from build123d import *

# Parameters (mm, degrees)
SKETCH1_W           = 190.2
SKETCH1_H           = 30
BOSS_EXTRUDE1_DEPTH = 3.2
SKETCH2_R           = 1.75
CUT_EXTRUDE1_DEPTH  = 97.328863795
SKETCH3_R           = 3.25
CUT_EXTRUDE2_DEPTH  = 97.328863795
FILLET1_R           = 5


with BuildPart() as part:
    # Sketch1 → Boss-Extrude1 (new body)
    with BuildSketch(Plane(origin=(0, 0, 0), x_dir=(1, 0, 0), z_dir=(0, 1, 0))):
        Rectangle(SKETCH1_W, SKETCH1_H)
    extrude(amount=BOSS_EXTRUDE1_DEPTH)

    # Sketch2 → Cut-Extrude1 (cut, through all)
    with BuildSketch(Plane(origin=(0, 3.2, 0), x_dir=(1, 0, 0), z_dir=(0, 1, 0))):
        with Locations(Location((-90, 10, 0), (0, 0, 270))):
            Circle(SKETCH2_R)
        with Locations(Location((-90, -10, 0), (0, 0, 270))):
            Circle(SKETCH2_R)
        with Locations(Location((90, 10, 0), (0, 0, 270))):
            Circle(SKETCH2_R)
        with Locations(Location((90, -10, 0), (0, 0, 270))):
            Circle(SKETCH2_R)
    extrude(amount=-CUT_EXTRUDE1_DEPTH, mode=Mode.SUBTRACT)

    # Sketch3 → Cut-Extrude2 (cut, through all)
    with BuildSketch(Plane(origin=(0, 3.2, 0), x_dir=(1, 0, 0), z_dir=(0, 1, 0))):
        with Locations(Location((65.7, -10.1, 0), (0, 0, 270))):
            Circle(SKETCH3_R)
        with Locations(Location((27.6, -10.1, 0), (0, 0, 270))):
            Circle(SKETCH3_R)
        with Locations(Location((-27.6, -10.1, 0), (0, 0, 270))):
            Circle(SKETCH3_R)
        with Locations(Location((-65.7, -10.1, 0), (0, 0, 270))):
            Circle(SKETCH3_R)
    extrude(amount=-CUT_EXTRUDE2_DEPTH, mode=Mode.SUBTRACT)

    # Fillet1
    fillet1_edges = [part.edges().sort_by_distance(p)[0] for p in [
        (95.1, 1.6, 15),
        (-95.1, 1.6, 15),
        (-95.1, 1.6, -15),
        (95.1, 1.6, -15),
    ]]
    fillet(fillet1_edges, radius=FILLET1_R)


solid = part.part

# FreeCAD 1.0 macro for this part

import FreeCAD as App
import Part
import Sketcher

V = App.Vector


def edges_at(feature, points):
    """Names of the edges that pass closest to the given points."""
    edges = feature.Shape.Edges
    near = lambda p: min(range(len(edges)), key=lambda i: edges[i].distToShape(Part.Vertex(*p))[0])
    return sorted({f"Edge{near(p) + 1}" for p in points})


def add_polygon(sketch, points):
    """Adds a closed chain of lines whose ends are joined by coincident constraints."""
    first, n = sketch.GeometryCount, len(points)
    for a, b in zip(points, points[1:] + points[:1]):
        sketch.addGeometry(Part.LineSegment(App.Vector(*a, 0), App.Vector(*b, 0)), False)
    for i in range(n):
        sketch.addConstraint(Sketcher.Constraint("Coincident", first + i, 2, first + (i + 1) % n, 1))

doc = App.newDocument("Part")
body = doc.addObject("PartDesign::Body", "Body")

# Sketch on XZ plane
sketch1 = body.newObject("Sketcher::SketchObject", "Sketch")
sketch1.AttachmentSupport = (doc.getObject("XZ_Plane"), [""])
sketch1.MapMode = "FlatFace"
add_polygon(sketch1, [(-95, -15), (-95, 15), (95, 15), (95, -15)])  # lines 0-3
sketch1.addConstraint(Sketcher.Constraint("Vertical", 0))
sketch1.addConstraint(Sketcher.Constraint("Horizontal", 1))
sketch1.addConstraint(Sketcher.Constraint("Vertical", 2))
sketch1.addConstraint(Sketcher.Constraint("Horizontal", 3))
sketch1.addConstraint(Sketcher.Constraint("Symmetric", 0, 2, 2, 2, -1, 1))
sketch1.addConstraint(Sketcher.Constraint("DistanceY", 0, 1, 0, 2, 30.0))
sketch1.addConstraint(Sketcher.Constraint("DistanceX", 1, 1, 1, 2, 190.2))
pad1 = body.newObject("PartDesign::Pad", "Pad")
pad1.Profile = sketch1
pad1.Length = 3.2
pad1.Reversed = True

# Sketch on XZ plane
sketch2 = body.newObject("Sketcher::SketchObject", "Sketch001")
sketch2.AttachmentSupport = (doc.getObject("XZ_Plane"), [""])
sketch2.MapMode = "FlatFace"
sketch2.AttachmentOffset = App.Placement(V(0, 0, -3.2), App.Rotation())
sketch2.addGeometry(Part.Circle(V(-90, -10, 0), V(0, 0, 1), 1.8), False)
sketch2.addGeometry(Part.Circle(V(-90, 10, 0), V(0, 0, 1), 1.8), False)
sketch2.addGeometry(Part.Circle(V(90, -10, 0), V(0, 0, 1), 1.8), False)
sketch2.addGeometry(Part.Circle(V(90, 10, 0), V(0, 0, 1), 1.8), False)
sketch2.addConstraint(Sketcher.Constraint("Equal", 0, 1))
sketch2.addConstraint(Sketcher.Constraint("Equal", 1, 2))
sketch2.addConstraint(Sketcher.Constraint("Equal", 2, 3))
sketch2.addConstraint(Sketcher.Constraint("Symmetric", 1, 3, 2, 3, -1, 1))
sketch2.addConstraint(Sketcher.Constraint("Symmetric", 0, 3, 3, 3, -1, 1))
sketch2.addConstraint(Sketcher.Constraint("Symmetric", 0, 3, 2, 3, -2))
sketch2.addConstraint(Sketcher.Constraint("Diameter", 0, 3.5))
sketch2.addConstraint(Sketcher.Constraint("DistanceX", 0, 3, -1, 1, 90.0))
sketch2.addConstraint(Sketcher.Constraint("DistanceY", 0, 3, -1, 1, 10.0))
pocket1 = body.newObject("PartDesign::Pocket", "Pocket")
pocket1.Profile = sketch2
pocket1.Type = "ThroughAll"
pocket1.Reversed = True

# Sketch on XZ plane
sketch3 = body.newObject("Sketcher::SketchObject", "Sketch002")
sketch3.AttachmentSupport = (doc.getObject("XZ_Plane"), [""])
sketch3.MapMode = "FlatFace"
sketch3.AttachmentOffset = App.Placement(V(0, 0, -3.2), App.Rotation())
sketch3.addGeometry(Part.Circle(V(65.7, 10.1, 0), V(0, 0, 1), 3.2), False)
sketch3.addGeometry(Part.Circle(V(27.6, 10.1, 0), V(0, 0, 1), 3.2), False)
sketch3.addGeometry(Part.Circle(V(-27.6, 10.1, 0), V(0, 0, 1), 3.2), False)
sketch3.addGeometry(Part.Circle(V(-65.7, 10.1, 0), V(0, 0, 1), 3.2), False)
sketch3.addConstraint(Sketcher.Constraint("Equal", 0, 1))
sketch3.addConstraint(Sketcher.Constraint("Equal", 1, 2))
sketch3.addConstraint(Sketcher.Constraint("Equal", 2, 3))
sketch3.addConstraint(Sketcher.Constraint("Symmetric", 1, 3, 2, 3, -2))
sketch3.addConstraint(Sketcher.Constraint("Symmetric", 0, 3, 3, 3, -2))
sketch3.addConstraint(Sketcher.Constraint("Horizontal", 0, 3, 1, 3))
sketch3.addConstraint(Sketcher.Constraint("Diameter", 0, 6.5))
sketch3.addConstraint(Sketcher.Constraint("DistanceX", -1, 1, 0, 3, 65.7))
sketch3.addConstraint(Sketcher.Constraint("DistanceY", -1, 1, 0, 3, 10.1))
sketch3.addConstraint(Sketcher.Constraint("DistanceX", -1, 1, 1, 3, 27.6))
pocket2 = body.newObject("PartDesign::Pocket", "Pocket001")
pocket2.Profile = sketch3
pocket2.Type = "ThroughAll"
pocket2.Reversed = True
doc.recompute()

fillet = body.newObject("PartDesign::Fillet", "Fillet")
fillet.Base = (pocket2, edges_at(pocket2, [
    (95.1, 1.6, 15),
    (-95.1, 1.6, 15),
    (-95.1, 1.6, -15),
    (95.1, 1.6, -15),
]))
fillet.Radius = 5

doc.recompute()
